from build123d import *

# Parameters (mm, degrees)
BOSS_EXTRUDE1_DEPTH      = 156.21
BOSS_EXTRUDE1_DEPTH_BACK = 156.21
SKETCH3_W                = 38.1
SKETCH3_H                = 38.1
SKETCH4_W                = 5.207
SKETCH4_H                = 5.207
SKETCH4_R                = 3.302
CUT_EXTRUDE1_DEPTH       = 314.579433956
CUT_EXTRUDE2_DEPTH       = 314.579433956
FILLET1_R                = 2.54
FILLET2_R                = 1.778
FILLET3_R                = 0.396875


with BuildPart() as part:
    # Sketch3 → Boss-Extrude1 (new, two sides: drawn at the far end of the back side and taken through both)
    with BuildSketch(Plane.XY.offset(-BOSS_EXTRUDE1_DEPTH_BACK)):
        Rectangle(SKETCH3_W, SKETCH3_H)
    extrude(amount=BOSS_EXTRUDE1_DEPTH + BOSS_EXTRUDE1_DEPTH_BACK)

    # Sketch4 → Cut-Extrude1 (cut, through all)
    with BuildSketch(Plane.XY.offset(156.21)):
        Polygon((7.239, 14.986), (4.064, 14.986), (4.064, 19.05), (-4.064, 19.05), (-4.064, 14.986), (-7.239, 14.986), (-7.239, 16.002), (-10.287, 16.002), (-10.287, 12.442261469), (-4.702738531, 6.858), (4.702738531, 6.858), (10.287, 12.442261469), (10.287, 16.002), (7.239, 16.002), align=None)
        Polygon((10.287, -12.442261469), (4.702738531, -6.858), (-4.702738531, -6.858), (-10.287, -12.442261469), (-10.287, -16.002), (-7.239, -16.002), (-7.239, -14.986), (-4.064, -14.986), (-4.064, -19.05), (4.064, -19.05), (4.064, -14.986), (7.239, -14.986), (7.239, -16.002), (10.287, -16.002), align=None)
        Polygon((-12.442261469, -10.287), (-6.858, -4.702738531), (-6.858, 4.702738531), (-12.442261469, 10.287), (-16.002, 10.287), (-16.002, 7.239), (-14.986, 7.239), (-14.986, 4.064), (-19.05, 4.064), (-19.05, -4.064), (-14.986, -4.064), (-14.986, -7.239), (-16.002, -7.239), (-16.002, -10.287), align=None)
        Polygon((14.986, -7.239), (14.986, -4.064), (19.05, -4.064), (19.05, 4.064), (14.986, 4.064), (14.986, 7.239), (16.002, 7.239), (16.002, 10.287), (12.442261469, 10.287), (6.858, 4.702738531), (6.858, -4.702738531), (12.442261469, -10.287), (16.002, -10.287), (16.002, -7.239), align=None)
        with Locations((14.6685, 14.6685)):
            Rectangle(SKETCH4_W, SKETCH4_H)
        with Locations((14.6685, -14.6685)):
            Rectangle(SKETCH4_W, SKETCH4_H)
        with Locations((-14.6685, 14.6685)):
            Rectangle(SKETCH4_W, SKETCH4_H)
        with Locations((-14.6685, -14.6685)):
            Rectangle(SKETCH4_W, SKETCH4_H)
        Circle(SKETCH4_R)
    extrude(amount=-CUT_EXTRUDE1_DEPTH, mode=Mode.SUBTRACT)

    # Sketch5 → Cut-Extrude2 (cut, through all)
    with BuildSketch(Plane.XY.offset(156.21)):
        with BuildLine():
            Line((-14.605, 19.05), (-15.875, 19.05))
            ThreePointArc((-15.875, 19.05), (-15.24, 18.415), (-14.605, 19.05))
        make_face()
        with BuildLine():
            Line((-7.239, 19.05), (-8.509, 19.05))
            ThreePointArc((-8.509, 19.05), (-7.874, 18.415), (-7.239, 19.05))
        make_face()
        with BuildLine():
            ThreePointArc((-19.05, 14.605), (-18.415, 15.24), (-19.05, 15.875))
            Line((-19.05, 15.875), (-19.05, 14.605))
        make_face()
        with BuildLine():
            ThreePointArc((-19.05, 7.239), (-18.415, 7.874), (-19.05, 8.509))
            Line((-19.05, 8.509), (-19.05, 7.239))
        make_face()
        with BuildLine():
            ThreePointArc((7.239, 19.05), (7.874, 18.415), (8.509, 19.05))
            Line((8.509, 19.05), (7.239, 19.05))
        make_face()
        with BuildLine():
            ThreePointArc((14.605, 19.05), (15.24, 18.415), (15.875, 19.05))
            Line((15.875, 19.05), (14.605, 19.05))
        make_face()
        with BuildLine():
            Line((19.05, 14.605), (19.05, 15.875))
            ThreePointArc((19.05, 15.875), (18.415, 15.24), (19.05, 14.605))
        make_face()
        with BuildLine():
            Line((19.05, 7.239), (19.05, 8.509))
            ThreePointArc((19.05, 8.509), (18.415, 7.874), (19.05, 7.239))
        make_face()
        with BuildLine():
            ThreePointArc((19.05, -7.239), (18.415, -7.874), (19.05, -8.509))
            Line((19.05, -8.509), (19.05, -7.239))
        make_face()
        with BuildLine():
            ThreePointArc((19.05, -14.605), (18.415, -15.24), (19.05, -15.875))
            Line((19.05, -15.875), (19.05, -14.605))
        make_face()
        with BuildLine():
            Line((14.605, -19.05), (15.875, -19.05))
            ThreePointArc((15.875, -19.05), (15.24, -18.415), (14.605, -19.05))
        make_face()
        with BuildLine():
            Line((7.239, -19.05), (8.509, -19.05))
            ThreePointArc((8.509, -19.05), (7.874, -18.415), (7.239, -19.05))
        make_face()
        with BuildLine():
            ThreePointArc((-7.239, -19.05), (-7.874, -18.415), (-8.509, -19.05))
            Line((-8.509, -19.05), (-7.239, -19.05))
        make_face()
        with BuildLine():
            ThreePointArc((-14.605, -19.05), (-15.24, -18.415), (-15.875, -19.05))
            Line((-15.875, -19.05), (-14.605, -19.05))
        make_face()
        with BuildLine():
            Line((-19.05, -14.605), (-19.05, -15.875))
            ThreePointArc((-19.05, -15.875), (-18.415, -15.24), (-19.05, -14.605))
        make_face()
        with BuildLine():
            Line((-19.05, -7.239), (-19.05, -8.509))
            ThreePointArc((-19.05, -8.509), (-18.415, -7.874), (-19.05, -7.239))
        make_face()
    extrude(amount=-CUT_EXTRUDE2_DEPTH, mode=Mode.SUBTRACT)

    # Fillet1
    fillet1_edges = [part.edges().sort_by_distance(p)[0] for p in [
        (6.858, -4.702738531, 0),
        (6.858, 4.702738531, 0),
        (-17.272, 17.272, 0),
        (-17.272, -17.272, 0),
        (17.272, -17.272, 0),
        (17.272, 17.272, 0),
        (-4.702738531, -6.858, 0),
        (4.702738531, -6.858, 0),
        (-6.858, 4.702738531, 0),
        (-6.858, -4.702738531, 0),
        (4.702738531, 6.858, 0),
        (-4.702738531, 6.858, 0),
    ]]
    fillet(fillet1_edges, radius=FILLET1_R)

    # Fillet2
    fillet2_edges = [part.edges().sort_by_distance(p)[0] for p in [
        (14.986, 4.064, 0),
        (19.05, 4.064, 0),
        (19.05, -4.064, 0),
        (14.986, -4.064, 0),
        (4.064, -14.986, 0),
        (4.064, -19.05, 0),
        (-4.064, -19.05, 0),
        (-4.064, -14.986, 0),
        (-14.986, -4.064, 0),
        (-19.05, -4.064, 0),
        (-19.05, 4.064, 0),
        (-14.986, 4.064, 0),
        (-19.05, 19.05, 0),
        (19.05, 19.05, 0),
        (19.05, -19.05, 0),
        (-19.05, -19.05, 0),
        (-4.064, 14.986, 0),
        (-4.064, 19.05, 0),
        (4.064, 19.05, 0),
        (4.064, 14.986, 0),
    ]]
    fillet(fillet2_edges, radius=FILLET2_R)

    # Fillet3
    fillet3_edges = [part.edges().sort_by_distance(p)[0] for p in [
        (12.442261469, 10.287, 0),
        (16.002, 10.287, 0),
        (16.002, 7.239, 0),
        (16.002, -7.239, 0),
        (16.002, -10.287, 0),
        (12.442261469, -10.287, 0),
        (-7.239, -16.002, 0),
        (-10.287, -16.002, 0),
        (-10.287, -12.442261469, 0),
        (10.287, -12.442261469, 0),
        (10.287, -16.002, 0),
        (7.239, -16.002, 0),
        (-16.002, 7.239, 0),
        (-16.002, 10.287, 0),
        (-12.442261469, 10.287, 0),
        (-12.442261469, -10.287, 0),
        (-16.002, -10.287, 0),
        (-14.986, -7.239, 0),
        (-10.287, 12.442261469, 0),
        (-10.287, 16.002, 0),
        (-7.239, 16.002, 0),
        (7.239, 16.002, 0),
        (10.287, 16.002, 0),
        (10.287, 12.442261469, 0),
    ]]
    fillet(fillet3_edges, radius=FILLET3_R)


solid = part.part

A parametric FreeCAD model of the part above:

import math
import FreeCAD as App
import Part
import Sketcher

V = App.Vector
Q = App.Units.Quantity


def edges_at(feature, points):
    """Names of the edges that pass closest to the given points."""
    edges = feature.Shape.Edges
    near = lambda p: min(range(len(edges)), key=lambda i: edges[i].distToShape(Part.Vertex(*p))[0])
    return sorted({f"Edge{near(p) + 1}" for p in points})


def add_polygon(sketch, points):
    """Adds a closed chain of lines whose ends are joined by coincident constraints."""
    first, n = sketch.GeometryCount, len(points)
    for a, b in zip(points, points[1:] + points[:1]):
        sketch.addGeometry(Part.LineSegment(App.Vector(*a, 0), App.Vector(*b, 0)), False)
    for i in range(n):
        sketch.addConstraint(Sketcher.Constraint("Coincident", first + i, 2, first + (i + 1) % n, 1))

doc = App.newDocument("Part")
body = doc.addObject("PartDesign::Body", "Body")

sketch1 = body.newObject("Sketcher::SketchObject", "Sketch")
sketch1.AttachmentSupport = (doc.getObject("XY_Plane"), [""])
sketch1.MapMode = "FlatFace"
add_polygon(sketch1, [(-19.05, 19.05), (-19.05, -19.05), (19.05, -19.05), (19.05, 19.05)])
sketch1.addConstraint([
    Sketcher.Constraint("Vertical", 0),
    Sketcher.Constraint("Horizontal", 1),
    Sketcher.Constraint("Vertical", 2),
    Sketcher.Constraint("Horizontal", 3),
    Sketcher.Constraint("Symmetric", 0, 2, 2, 2, -1, 1),
    Sketcher.Constraint("Equal", 3, 0),
    Sketcher.Constraint("DistanceX", 1, 1, 1, 2, Q("1.5 in")),
])
pad1 = body.newObject("PartDesign::Pad", "Pad")
pad1.Profile = sketch1
pad1.Type = "TwoLengths"
pad1.Length = Q("6.15 in")
pad1.Length2 = Q("6.15 in")

sketch2 = body.newObject("Sketcher::SketchObject", "Sketch001")
sketch2.AttachmentSupport = (doc.getObject("XY_Plane"), [""])
sketch2.MapMode = "FlatFace"
sketch2.AttachmentOffset = App.Placement(V(0, 0, 6.15 * 25.4), App.Rotation())
add_polygon(sketch2, [(7.239, 14.986), (4.064, 14.986), (4.064, 19.05), (-4.064, 19.05), (-4.064, 14.986), (-7.239, 14.986), (-7.239, 16.002), (-10.287, 16.002), (-10.287, 12.442261), (-4.702739, 6.858), (4.702739, 6.858), (10.287, 12.442261), (10.287, 16.002), (7.239, 16.002)])
add_polygon(sketch2, [(10.287, -12.442261), (4.702739, -6.858), (-4.702739, -6.858), (-10.287, -12.442261), (-10.287, -16.002), (-7.239, -16.002), (-7.239, -14.986), (-4.064, -14.986), (-4.064, -19.05), (4.064, -19.05), (4.064, -14.986), (7.239, -14.986), (7.239, -16.002), (10.287, -16.002)])
add_polygon(sketch2, [(-12.442261, -10.287), (-6.858, -4.702739), (-6.858, 4.702739), (-12.442261, 10.287), (-16.002, 10.287), (-16.002, 7.239), (-14.986, 7.239), (-14.986, 4.064), (-19.05, 4.064), (-19.05, -4.064), (-14.986, -4.064), (-14.986, -7.239), (-16.002, -7.239), (-16.002, -10.287)])
add_polygon(sketch2, [(14.986, -7.239), (14.986, -4.064), (19.05, -4.064), (19.05, 4.064), (14.986, 4.064), (14.986, 7.239), (16.002, 7.239), (16.002, 10.287), (12.442261, 10.287), (6.858, 4.702739), (6.858, -4.702739), (12.442261, -10.287), (16.002, -10.287), (16.002, -7.239)])
add_polygon(sketch2, [(12.065, 17.272), (12.065, 12.065), (17.272, 12.065), (17.272, 17.272)])
add_polygon(sketch2, [(12.065, -12.065), (12.065, -17.272), (17.272, -17.272), (17.272, -12.065)])
add_polygon(sketch2, [(-17.272, 17.272), (-17.272, 12.065), (-12.065, 12.065), (-12.065, 17.272)])
add_polygon(sketch2, [(-17.272, -12.065), (-17.272, -17.272), (-12.065, -17.272), (-12.065, -12.065)])
sketch2.addGeometry(Part.Circle(V(0, 0, 0), V(0, 0, 1), 3.302), False)
sketch2.addConstraint([
    Sketcher.Constraint("Horizontal", 0),
    Sketcher.Constraint("Vertical", 1),
    Sketcher.Constraint("Horizontal", 2),
    Sketcher.Constraint("Vertical", 3),
    Sketcher.Constraint("Horizontal", 4),
    Sketcher.Constraint("Vertical", 5),
    Sketcher.Constraint("Horizontal", 6),
    Sketcher.Constraint("Vertical", 7),
    Sketcher.Constraint("Horizontal", 9),
    Sketcher.Constraint("Vertical", 11),
    Sketcher.Constraint("Horizontal", 12),
    Sketcher.Constraint("Vertical", 13),
    Sketcher.Constraint("Horizontal", 15),
    Sketcher.Constraint("Vertical", 17),
    Sketcher.Constraint("Horizontal", 18),
    Sketcher.Constraint("Vertical", 19),
    Sketcher.Constraint("Horizontal", 20),
    Sketcher.Constraint("Vertical", 21),
    Sketcher.Constraint("Horizontal", 22),
    Sketcher.Constraint("Vertical", 23),
    Sketcher.Constraint("Horizontal", 24),
    Sketcher.Constraint("Vertical", 25),
    Sketcher.Constraint("Horizontal", 26),
    Sketcher.Constraint("Vertical", 27),
    Sketcher.Constraint("Vertical", 29),
    Sketcher.Constraint("Horizontal", 31),
    Sketcher.Constraint("Vertical", 32),
    Sketcher.Constraint("Horizontal", 33),
    Sketcher.Constraint("Vertical", 34),
    Sketcher.Constraint("Horizontal", 35),
    Sketcher.Constraint("Vertical", 36),
    Sketcher.Constraint("Horizontal", 37),
    Sketcher.Constraint("Vertical", 38),
    Sketcher.Constraint("Horizontal", 39),
    Sketcher.Constraint("Vertical", 40),
    Sketcher.Constraint("Horizontal", 41),
    Sketcher.Constraint("Vertical", 42),
    Sketcher.Constraint("Horizontal", 43),
    Sketcher.Constraint("Vertical", 44),
    Sketcher.Constraint("Horizontal", 45),
    Sketcher.Constraint("Vertical", 46),
    Sketcher.Constraint("Horizontal", 47),
    Sketcher.Constraint("Vertical", 48),
    Sketcher.Constraint("Horizontal", 49),
    Sketcher.Constraint("Vertical", 51),
    Sketcher.Constraint("Horizontal", 53),
    Sketcher.Constraint("Vertical", 54),
    Sketcher.Constraint("Horizontal", 55),
    Sketcher.Constraint("Vertical", 56),
    Sketcher.Constraint("Horizontal", 57),
    Sketcher.Constraint("Vertical", 58),
    Sketcher.Constraint("Horizontal", 59),
    Sketcher.Constraint("Vertical", 60),
    Sketcher.Constraint("Horizontal", 61),
    Sketcher.Constraint("Vertical", 62),
    Sketcher.Constraint("Horizontal", 63),
    Sketcher.Constraint("Vertical", 64),
    Sketcher.Constraint("Horizontal", 65),
    Sketcher.Constraint("Vertical", 66),
    Sketcher.Constraint("Horizontal", 67),
    Sketcher.Constraint("Vertical", 68),
    Sketcher.Constraint("Horizontal", 69),
    Sketcher.Constraint("Vertical", 70),
    Sketcher.Constraint("Horizontal", 71),
    Sketcher.Constraint("Coincident", 72, 3, -1, 1),
    Sketcher.Constraint("Symmetric", 8, 2, 14, 2, -1, 1),
    Sketcher.Constraint("Symmetric", 10, 2, 16, 2, -1, 1),
    Sketcher.Constraint("Symmetric", 12, 2, 18, 2, -1, 1),
    Sketcher.Constraint("Symmetric", 0, 2, 20, 2, -1, 1),
    Sketcher.Constraint("Symmetric", 2, 2, 22, 2, -1, 1),
    Sketcher.Constraint("Symmetric", 4, 2, 24, 2, -1, 1),
    Sketcher.Constraint("Symmetric", 6, 2, 26, 2, -1, 1),
    Sketcher.Constraint("Symmetric", 34, 2, 42, 2, -1, 1),
    Sketcher.Constraint("Symmetric", 36, 2, 44, 2, -1, 1),
    Sketcher.Constraint("Symmetric", 38, 2, 46, 2, -1, 1),
    Sketcher.Constraint("Symmetric", 40, 2, 48, 2, -1, 1),
    Sketcher.Constraint("Symmetric", 28, 2, 50, 2, -1, 1),
    Sketcher.Constraint("Symmetric", 30, 2, 52, 2, -1, 1),
    Sketcher.Constraint("Symmetric", 32, 2, 54, 2, -1, 1),
    Sketcher.Constraint("Symmetric", 62, 2, 64, 2, -1, 1),
    Sketcher.Constraint("Symmetric", 60, 2, 66, 2, -1, 1),
    Sketcher.Constraint("Symmetric", 58, 2, 68, 2, -1, 1),
    Sketcher.Constraint("Symmetric", 56, 2, 70, 2, -1, 1),
    Sketcher.Constraint("Symmetric", 0, 2, 3, 2, -2),
    Sketcher.Constraint("Symmetric", 7, 2, 10, 2, -2),
    Sketcher.Constraint("Symmetric", 5, 2, 12, 2, -2),
    Sketcher.Constraint("Symmetric", 37, 2, 42, 2, -2),
    Sketcher.Constraint("Symmetric", 32, 2, 47, 2, -2),
    Sketcher.Constraint("Symmetric", 30, 2, 49, 2, -2),
    Sketcher.Constraint("Symmetric", 57, 2, 64, 2, -2),
    Sketcher.Constraint("Symmetric", 59, 2, 66, 2, -2),
    Sketcher.Constraint("Perpendicular", 8, 10),
    Sketcher.Constraint("Perpendicular", 10, 14),
    Sketcher.Constraint("Perpendicular", 14, 16),
    Sketcher.Constraint("Parallel", 16, 28),
    Sketcher.Constraint("Perpendicular", 28, 30),
    Sketcher.Constraint("Perpendicular", 30, 50),
    Sketcher.Constraint("Perpendicular", 50, 52),
    Sketcher.Constraint("Horizontal", 29, 2, 50, 2),
    Sketcher.Constraint("Equal", 45, 1),
    Sketcher.Constraint("Equal", 55, 5),
    Sketcher.Constraint("Equal", 53, 7),
    Sketcher.Constraint("Equal", 15, 29),
    Sketcher.Constraint("Equal", 26, 32),
    Sketcher.Constraint("Equal", 24, 34),
    Sketcher.Constraint("Equal", 22, 36),
    Sketcher.Constraint("Equal", 71, 56),
    Sketcher.Constraint("Diameter", 72, Q("0.26 in")),
    Sketcher.Constraint("DistanceX", 2, 2, 2, 1, Q("0.32 in")),
    Sketcher.Constraint("DistanceX", 6, 2, 6, 1, Q("0.12 in")),
    Sketcher.Constraint("DistanceX", 33, 1, 33, 2, Q("0.04 in")),
    Sketcher.Constraint("DistanceX", 35, 2, 35, 1, Q("0.16 in")),
    Sketcher.Constraint("DistanceX", 0, 2, 0, 1, Q("0.125 in")),
    Sketcher.Constraint("DistanceX", 57, 1, 57, 2, Q("0.205 in")),
    Sketcher.Constraint("DistanceY", -1, 1, 0, 2, Q("0.59 in")),
    Sketcher.Constraint("DistanceY", -1, 1, 8, 2, Q("0.27 in")),
    Sketcher.Constraint("DistanceX", 28, 2, -1, 1, Q("0.27 in")),
    Sketcher.Constraint("DistanceX", -1, 1, 57, 2, Q("0.68 in")),
    Sketcher.Constraint("DistanceY", -1, 1, 58, 2, Q("0.68 in")),
    Sketcher.Constraint("DistanceX", 31, 2, 31, 1, Q("3.559739 mm")),
])
pocket1 = body.newObject("PartDesign::Pocket", "Pocket")
pocket1.Profile = sketch2
pocket1.Type = "ThroughAll"

sketch3 = body.newObject("Sketcher::SketchObject", "Sketch002")
sketch3.AttachmentSupport = (doc.getObject("XY_Plane"), [""])
sketch3.MapMode = "FlatFace"
sketch3.AttachmentOffset = App.Placement(V(0, 0, 6.15 * 25.4), App.Rotation())
sketch3.addGeometry([
    Part.LineSegment(V(-14.605, 19.05, 0), V(-15.875, 19.05, 0)),
    Part.ArcOfCircle(Part.Circle(V(-15.24, 19.05, 0), V(0, 0, 1), 0.635), math.radians(180), math.radians(360)),
    Part.LineSegment(V(-7.239, 19.05, 0), V(-8.509, 19.05, 0)),
    Part.ArcOfCircle(Part.Circle(V(-7.874, 19.05, 0), V(0, 0, 1), 0.635), math.radians(180), math.radians(360)),
    Part.ArcOfCircle(Part.Circle(V(-19.05, 15.24, 0), V(0, 0, 1), 0.635), math.radians(-90), math.radians(90)),
    Part.LineSegment(V(-19.05, 15.875, 0), V(-19.05, 14.605, 0)),
    Part.ArcOfCircle(Part.Circle(V(-19.05, 7.874, 0), V(0, 0, 1), 0.635), math.radians(-90), math.radians(90)),
    Part.LineSegment(V(-19.05, 8.509, 0), V(-19.05, 7.239, 0)),
    Part.ArcOfCircle(Part.Circle(V(7.874, 19.05, 0), V(0, 0, 1), 0.635), math.radians(180), math.radians(360)),
    Part.LineSegment(V(8.509, 19.05, 0), V(7.239, 19.05, 0)),
    Part.ArcOfCircle(Part.Circle(V(15.24, 19.05, 0), V(0, 0, 1), 0.635), math.radians(180), math.radians(360)),
    Part.LineSegment(V(15.875, 19.05, 0), V(14.605, 19.05, 0)),
    Part.LineSegment(V(19.05, 14.605, 0), V(19.05, 15.875, 0)),
    Part.ArcOfCircle(Part.Circle(V(19.05, 15.24, 0), V(0, 0, 1), 0.635), math.radians(90), math.radians(270)),
    Part.LineSegment(V(19.05, 7.239, 0), V(19.05, 8.509, 0)),
    Part.ArcOfCircle(Part.Circle(V(19.05, 7.874, 0), V(0, 0, 1), 0.635), math.radians(90), math.radians(270)),
    Part.ArcOfCircle(Part.Circle(V(19.05, -7.874, 0), V(0, 0, 1), 0.635), math.radians(90), math.radians(270)),
    Part.LineSegment(V(19.05, -8.509, 0), V(19.05, -7.239, 0)),
    Part.ArcOfCircle(Part.Circle(V(19.05, -15.24, 0), V(0, 0, 1), 0.635), math.radians(90), math.radians(270)),
    Part.LineSegment(V(19.05, -15.875, 0), V(19.05, -14.605, 0)),
    Part.LineSegment(V(14.605, -19.05, 0), V(15.875, -19.05, 0)),
    Part.ArcOfCircle(Part.Circle(V(15.24, -19.05, 0), V(0, 0, 1), 0.635), math.radians(0), math.radians(180)),
    Part.LineSegment(V(7.239, -19.05, 0), V(8.509, -19.05, 0)),
    Part.ArcOfCircle(Part.Circle(V(7.874, -19.05, 0), V(0, 0, 1), 0.635), math.radians(0), math.radians(180)),
    Part.ArcOfCircle(Part.Circle(V(-7.874, -19.05, 0), V(0, 0, 1), 0.635), math.radians(0), math.radians(180)),
    Part.LineSegment(V(-8.509, -19.05, 0), V(-7.239, -19.05, 0)),
    Part.ArcOfCircle(Part.Circle(V(-15.24, -19.05, 0), V(0, 0, 1), 0.635), math.radians(0), math.radians(180)),
    Part.LineSegment(V(-15.875, -19.05, 0), V(-14.605, -19.05, 0)),
    Part.LineSegment(V(-19.05, -14.605, 0), V(-19.05, -15.875, 0)),
    Part.ArcOfCircle(Part.Circle(V(-19.05, -15.24, 0), V(0, 0, 1), 0.635), math.radians(-90), math.radians(90)),
    Part.LineSegment(V(-19.05, -7.239, 0), V(-19.05, -8.509, 0)),
    Part.ArcOfCircle(Part.Circle(V(-19.05, -7.874, 0), V(0, 0, 1), 0.635), math.radians(-90), math.radians(90)),
], False)
sketch3.addConstraint([
    Sketcher.Constraint("Coincident", 0, 1, 1, 2),
    Sketcher.Constraint("Coincident", 1, 1, 0, 2),
    Sketcher.Constraint("Coincident", 2, 1, 3, 2),
    Sketcher.Constraint("Coincident", 3, 1, 2, 2),
    Sketcher.Constraint("Coincident", 4, 1, 5, 2),
    Sketcher.Constraint("Coincident", 5, 1, 4, 2),
    Sketcher.Constraint("Coincident", 6, 1, 7, 2),
    Sketcher.Constraint("Coincident", 7, 1, 6, 2),
    Sketcher.Constraint("Coincident", 8, 1, 9, 2),
    Sketcher.Constraint("Coincident", 9, 1, 8, 2),
    Sketcher.Constraint("Coincident", 10, 1, 11, 2),
    Sketcher.Constraint("Coincident", 11, 1, 10, 2),
    Sketcher.Constraint("Coincident", 12, 1, 13, 2),
    Sketcher.Constraint("Coincident", 13, 1, 12, 2),
    Sketcher.Constraint("Coincident", 14, 1, 15, 2),
    Sketcher.Constraint("Coincident", 15, 1, 14, 2),
    Sketcher.Constraint("Coincident", 16, 1, 17, 2),
    Sketcher.Constraint("Coincident", 17, 1, 16, 2),
    Sketcher.Constraint("Coincident", 18, 1, 19, 2),
    Sketcher.Constraint("Coincident", 19, 1, 18, 2),
    Sketcher.Constraint("Coincident", 20, 1, 21, 2),
    Sketcher.Constraint("Coincident", 21, 1, 20, 2),
    Sketcher.Constraint("Coincident", 22, 1, 23, 2),
    Sketcher.Constraint("Coincident", 23, 1, 22, 2),
    Sketcher.Constraint("Coincident", 24, 1, 25, 2),
    Sketcher.Constraint("Coincident", 25, 1, 24, 2),
    Sketcher.Constraint("Coincident", 26, 1, 27, 2),
    Sketcher.Constraint("Coincident", 27, 1, 26, 2),
    Sketcher.Constraint("Coincident", 28, 1, 29, 2),
    Sketcher.Constraint("Coincident", 29, 1, 28, 2),
    Sketcher.Constraint("Coincident", 30, 1, 31, 2),
    Sketcher.Constraint("Coincident", 31, 1, 30, 2),
    Sketcher.Constraint("Horizontal", 0),
    Sketcher.Constraint("Horizontal", 2),
    Sketcher.Constraint("Vertical", 5),
    Sketcher.Constraint("Vertical", 7),
    Sketcher.Constraint("Horizontal", 9),
    Sketcher.Constraint("Horizontal", 11),
    Sketcher.Constraint("Vertical", 12),
    Sketcher.Constraint("Vertical", 14),
    Sketcher.Constraint("Vertical", 17),
    Sketcher.Constraint("Vertical", 19),
    Sketcher.Constraint("Horizontal", 20),
    Sketcher.Constraint("Horizontal", 22),
    Sketcher.Constraint("Horizontal", 25),
    Sketcher.Constraint("Horizontal", 27),
    Sketcher.Constraint("Vertical", 28),
    Sketcher.Constraint("Vertical", 30),
    Sketcher.Constraint("Equal", 1, 3),
    Sketcher.Constraint("Equal", 3, 4),
    Sketcher.Constraint("Equal", 4, 6),
    Sketcher.Constraint("Equal", 6, 8),
    Sketcher.Constraint("Equal", 8, 10),
    Sketcher.Constraint("Equal", 10, 13),
    Sketcher.Constraint("Equal", 13, 15),
    Sketcher.Constraint("Equal", 15, 16),
    Sketcher.Constraint("Equal", 16, 18),
    Sketcher.Constraint("Equal", 18, 21),
    Sketcher.Constraint("Equal", 21, 23),
    Sketcher.Constraint("Equal", 23, 24),
    Sketcher.Constraint("Equal", 24, 26),
    Sketcher.Constraint("Equal", 26, 29),
    Sketcher.Constraint("Equal", 29, 31),
    Sketcher.Constraint("Symmetric", 6, 3, 16, 3, -1, 1),
    Sketcher.Constraint("Symmetric", 4, 3, 18, 3, -1, 1),
    Sketcher.Constraint("Symmetric", 1, 3, 21, 3, -1, 1),
    Sketcher.Constraint("Symmetric", 3, 3, 23, 3, -1, 1),
    Sketcher.Constraint("Symmetric", 8, 3, 24, 3, -1, 1),
    Sketcher.Constraint("Symmetric", 10, 3, 26, 3, -1, 1),
    Sketcher.Constraint("Symmetric", 13, 3, 29, 3, -1, 1),
    Sketcher.Constraint("Symmetric", 15, 3, 31, 3, -1, 1),
    Sketcher.Constraint("Symmetric", 3, 3, 8, 3, -2),
    Sketcher.Constraint("Symmetric", 1, 3, 10, 3, -2),
    Sketcher.Constraint("Symmetric", 4, 3, 13, 3, -2),
    Sketcher.Constraint("Symmetric", 6, 3, 15, 3, -2),
    Sketcher.Constraint("Horizontal", 1, 3, 3, 3),
    Sketcher.Constraint("Horizontal", 10, 3, 0, 1),
    Sketcher.Constraint("Horizontal", 1, 1, 2, 1),
    Sketcher.Constraint("Horizontal", 3, 1, 8, 1),
    Sketcher.Constraint("Horizontal", 9, 1, 10, 1),
    Sketcher.Constraint("Horizontal", 26, 3, 20, 1),
    Sketcher.Constraint("Horizontal", 21, 1, 22, 1),
    Sketcher.Constraint("Horizontal", 23, 1, 24, 1),
    Sketcher.Constraint("Horizontal", 25, 1, 26, 1),
    Sketcher.Constraint("Vertical", 4, 3, 6, 3),
    Sketcher.Constraint("Vertical", 31, 3, 4, 1),
    Sketcher.Constraint("Vertical", 5, 1, 6, 1),
    Sketcher.Constraint("Vertical", 18, 3, 12, 1),
    Sketcher.Constraint("Vertical", 13, 1, 14, 1),
    Sketcher.Constraint("Vertical", 15, 1, 16, 1),
    Sketcher.Constraint("Vertical", 17, 1, 18, 1),
    Sketcher.Constraint("Vertical", 7, 1, 28, 1),
    Sketcher.Constraint("Vertical", 29, 1, 30, 1),
    Sketcher.Constraint("Radius", 1, Q("0.025 in")),
    Sketcher.Constraint("DistanceX", 1, 3, -1, 1, Q("0.6 in")),
    Sketcher.Constraint("DistanceY", -1, 1, 4, 3, Q("0.6 in")),
    Sketcher.Constraint("DistanceX", 4, 3, 13, 3, Q("1.5 in")),
    Sketcher.Constraint("DistanceY", 21, 3, 10, 3, Q("1.5 in")),
    Sketcher.Constraint("DistanceX", 3, 3, -1, 1, Q("0.31 in")),
    Sketcher.Constraint("DistanceY", -1, 1, 6, 3, Q("0.31 in")),
])
pocket2 = body.newObject("PartDesign::Pocket", "Pocket001")
pocket2.Profile = sketch3
pocket2.Type = "ThroughAll"
doc.recompute()

fillet = body.newObject("PartDesign::Fillet", "Fillet")
fillet.Base = (pocket2, edges_at(pocket2, [
    (6.858, -4.703, 0),
    (6.858, 4.703, 0),
    (-17.272, 17.272, 0),
    (-17.272, -17.272, 0),
    (17.272, -17.272, 0),
    (17.272, 17.272, 0),
    (-4.703, -6.858, 0),
    (4.703, -6.858, 0),
    (-6.858, 4.703, 0),
    (-6.858, -4.703, 0),
    (4.703, 6.858, 0),
    (-4.703, 6.858, 0),
]))
fillet.Radius = Q("0.1 in")
doc.recompute()

fillet2 = body.newObject("PartDesign::Fillet", "Fillet001")
fillet2.Base = (fillet, edges_at(fillet, [
    (14.986, 4.064, 0),
    (19.05, 4.064, 0),
    (19.05, -4.064, 0),
    (14.986, -4.064, 0),
    (4.064, -14.986, 0),
    (4.064, -19.05, 0),
    (-4.064, -19.05, 0),
    (-4.064, -14.986, 0),
    (-14.986, -4.064, 0),
    (-19.05, -4.064, 0),
    (-19.05, 4.064, 0),
    (-14.986, 4.064, 0),
    (-19.05, 19.05, 0),
    (19.05, 19.05, 0),
    (19.05, -19.05, 0),
    (-19.05, -19.05, 0),
    (-4.064, 14.986, 0),
    (-4.064, 19.05, 0),
    (4.064, 19.05, 0),
    (4.064, 14.986, 0),
]))
fillet2.Radius = Q("0.07 in")
doc.recompute()

fillet3 = body.newObject("PartDesign::Fillet", "Fillet002")
fillet3.Base = (fillet2, edges_at(fillet2, [
    (12.442, 10.287, 0),
    (16.002, 10.287, 0),
    (16.002, 7.239, 0),
    (16.002, -7.239, 0),
    (16.002, -10.287, 0),
    (12.442, -10.287, 0),
    (-7.239, -16.002, 0),
    (-10.287, -16.002, 0),
    (-10.287, -12.442, 0),
    (10.287, -12.442, 0),
    (10.287, -16.002, 0),
    (7.239, -16.002, 0),
    (-16.002, 7.239, 0),
    (-16.002, 10.287, 0),
    (-12.442, 10.287, 0),
    (-12.442, -10.287, 0),
    (-16.002, -10.287, 0),
    (-14.986, -7.239, 0),
    (-10.287, 12.442, 0),
    (-10.287, 16.002, 0),
    (-7.239, 16.002, 0),
    (7.239, 16.002, 0),
    (10.287, 16.002, 0),
    (10.287, 12.442, 0),
]))
fillet3.Radius = Q("0.015625 in")

doc.recompute()
